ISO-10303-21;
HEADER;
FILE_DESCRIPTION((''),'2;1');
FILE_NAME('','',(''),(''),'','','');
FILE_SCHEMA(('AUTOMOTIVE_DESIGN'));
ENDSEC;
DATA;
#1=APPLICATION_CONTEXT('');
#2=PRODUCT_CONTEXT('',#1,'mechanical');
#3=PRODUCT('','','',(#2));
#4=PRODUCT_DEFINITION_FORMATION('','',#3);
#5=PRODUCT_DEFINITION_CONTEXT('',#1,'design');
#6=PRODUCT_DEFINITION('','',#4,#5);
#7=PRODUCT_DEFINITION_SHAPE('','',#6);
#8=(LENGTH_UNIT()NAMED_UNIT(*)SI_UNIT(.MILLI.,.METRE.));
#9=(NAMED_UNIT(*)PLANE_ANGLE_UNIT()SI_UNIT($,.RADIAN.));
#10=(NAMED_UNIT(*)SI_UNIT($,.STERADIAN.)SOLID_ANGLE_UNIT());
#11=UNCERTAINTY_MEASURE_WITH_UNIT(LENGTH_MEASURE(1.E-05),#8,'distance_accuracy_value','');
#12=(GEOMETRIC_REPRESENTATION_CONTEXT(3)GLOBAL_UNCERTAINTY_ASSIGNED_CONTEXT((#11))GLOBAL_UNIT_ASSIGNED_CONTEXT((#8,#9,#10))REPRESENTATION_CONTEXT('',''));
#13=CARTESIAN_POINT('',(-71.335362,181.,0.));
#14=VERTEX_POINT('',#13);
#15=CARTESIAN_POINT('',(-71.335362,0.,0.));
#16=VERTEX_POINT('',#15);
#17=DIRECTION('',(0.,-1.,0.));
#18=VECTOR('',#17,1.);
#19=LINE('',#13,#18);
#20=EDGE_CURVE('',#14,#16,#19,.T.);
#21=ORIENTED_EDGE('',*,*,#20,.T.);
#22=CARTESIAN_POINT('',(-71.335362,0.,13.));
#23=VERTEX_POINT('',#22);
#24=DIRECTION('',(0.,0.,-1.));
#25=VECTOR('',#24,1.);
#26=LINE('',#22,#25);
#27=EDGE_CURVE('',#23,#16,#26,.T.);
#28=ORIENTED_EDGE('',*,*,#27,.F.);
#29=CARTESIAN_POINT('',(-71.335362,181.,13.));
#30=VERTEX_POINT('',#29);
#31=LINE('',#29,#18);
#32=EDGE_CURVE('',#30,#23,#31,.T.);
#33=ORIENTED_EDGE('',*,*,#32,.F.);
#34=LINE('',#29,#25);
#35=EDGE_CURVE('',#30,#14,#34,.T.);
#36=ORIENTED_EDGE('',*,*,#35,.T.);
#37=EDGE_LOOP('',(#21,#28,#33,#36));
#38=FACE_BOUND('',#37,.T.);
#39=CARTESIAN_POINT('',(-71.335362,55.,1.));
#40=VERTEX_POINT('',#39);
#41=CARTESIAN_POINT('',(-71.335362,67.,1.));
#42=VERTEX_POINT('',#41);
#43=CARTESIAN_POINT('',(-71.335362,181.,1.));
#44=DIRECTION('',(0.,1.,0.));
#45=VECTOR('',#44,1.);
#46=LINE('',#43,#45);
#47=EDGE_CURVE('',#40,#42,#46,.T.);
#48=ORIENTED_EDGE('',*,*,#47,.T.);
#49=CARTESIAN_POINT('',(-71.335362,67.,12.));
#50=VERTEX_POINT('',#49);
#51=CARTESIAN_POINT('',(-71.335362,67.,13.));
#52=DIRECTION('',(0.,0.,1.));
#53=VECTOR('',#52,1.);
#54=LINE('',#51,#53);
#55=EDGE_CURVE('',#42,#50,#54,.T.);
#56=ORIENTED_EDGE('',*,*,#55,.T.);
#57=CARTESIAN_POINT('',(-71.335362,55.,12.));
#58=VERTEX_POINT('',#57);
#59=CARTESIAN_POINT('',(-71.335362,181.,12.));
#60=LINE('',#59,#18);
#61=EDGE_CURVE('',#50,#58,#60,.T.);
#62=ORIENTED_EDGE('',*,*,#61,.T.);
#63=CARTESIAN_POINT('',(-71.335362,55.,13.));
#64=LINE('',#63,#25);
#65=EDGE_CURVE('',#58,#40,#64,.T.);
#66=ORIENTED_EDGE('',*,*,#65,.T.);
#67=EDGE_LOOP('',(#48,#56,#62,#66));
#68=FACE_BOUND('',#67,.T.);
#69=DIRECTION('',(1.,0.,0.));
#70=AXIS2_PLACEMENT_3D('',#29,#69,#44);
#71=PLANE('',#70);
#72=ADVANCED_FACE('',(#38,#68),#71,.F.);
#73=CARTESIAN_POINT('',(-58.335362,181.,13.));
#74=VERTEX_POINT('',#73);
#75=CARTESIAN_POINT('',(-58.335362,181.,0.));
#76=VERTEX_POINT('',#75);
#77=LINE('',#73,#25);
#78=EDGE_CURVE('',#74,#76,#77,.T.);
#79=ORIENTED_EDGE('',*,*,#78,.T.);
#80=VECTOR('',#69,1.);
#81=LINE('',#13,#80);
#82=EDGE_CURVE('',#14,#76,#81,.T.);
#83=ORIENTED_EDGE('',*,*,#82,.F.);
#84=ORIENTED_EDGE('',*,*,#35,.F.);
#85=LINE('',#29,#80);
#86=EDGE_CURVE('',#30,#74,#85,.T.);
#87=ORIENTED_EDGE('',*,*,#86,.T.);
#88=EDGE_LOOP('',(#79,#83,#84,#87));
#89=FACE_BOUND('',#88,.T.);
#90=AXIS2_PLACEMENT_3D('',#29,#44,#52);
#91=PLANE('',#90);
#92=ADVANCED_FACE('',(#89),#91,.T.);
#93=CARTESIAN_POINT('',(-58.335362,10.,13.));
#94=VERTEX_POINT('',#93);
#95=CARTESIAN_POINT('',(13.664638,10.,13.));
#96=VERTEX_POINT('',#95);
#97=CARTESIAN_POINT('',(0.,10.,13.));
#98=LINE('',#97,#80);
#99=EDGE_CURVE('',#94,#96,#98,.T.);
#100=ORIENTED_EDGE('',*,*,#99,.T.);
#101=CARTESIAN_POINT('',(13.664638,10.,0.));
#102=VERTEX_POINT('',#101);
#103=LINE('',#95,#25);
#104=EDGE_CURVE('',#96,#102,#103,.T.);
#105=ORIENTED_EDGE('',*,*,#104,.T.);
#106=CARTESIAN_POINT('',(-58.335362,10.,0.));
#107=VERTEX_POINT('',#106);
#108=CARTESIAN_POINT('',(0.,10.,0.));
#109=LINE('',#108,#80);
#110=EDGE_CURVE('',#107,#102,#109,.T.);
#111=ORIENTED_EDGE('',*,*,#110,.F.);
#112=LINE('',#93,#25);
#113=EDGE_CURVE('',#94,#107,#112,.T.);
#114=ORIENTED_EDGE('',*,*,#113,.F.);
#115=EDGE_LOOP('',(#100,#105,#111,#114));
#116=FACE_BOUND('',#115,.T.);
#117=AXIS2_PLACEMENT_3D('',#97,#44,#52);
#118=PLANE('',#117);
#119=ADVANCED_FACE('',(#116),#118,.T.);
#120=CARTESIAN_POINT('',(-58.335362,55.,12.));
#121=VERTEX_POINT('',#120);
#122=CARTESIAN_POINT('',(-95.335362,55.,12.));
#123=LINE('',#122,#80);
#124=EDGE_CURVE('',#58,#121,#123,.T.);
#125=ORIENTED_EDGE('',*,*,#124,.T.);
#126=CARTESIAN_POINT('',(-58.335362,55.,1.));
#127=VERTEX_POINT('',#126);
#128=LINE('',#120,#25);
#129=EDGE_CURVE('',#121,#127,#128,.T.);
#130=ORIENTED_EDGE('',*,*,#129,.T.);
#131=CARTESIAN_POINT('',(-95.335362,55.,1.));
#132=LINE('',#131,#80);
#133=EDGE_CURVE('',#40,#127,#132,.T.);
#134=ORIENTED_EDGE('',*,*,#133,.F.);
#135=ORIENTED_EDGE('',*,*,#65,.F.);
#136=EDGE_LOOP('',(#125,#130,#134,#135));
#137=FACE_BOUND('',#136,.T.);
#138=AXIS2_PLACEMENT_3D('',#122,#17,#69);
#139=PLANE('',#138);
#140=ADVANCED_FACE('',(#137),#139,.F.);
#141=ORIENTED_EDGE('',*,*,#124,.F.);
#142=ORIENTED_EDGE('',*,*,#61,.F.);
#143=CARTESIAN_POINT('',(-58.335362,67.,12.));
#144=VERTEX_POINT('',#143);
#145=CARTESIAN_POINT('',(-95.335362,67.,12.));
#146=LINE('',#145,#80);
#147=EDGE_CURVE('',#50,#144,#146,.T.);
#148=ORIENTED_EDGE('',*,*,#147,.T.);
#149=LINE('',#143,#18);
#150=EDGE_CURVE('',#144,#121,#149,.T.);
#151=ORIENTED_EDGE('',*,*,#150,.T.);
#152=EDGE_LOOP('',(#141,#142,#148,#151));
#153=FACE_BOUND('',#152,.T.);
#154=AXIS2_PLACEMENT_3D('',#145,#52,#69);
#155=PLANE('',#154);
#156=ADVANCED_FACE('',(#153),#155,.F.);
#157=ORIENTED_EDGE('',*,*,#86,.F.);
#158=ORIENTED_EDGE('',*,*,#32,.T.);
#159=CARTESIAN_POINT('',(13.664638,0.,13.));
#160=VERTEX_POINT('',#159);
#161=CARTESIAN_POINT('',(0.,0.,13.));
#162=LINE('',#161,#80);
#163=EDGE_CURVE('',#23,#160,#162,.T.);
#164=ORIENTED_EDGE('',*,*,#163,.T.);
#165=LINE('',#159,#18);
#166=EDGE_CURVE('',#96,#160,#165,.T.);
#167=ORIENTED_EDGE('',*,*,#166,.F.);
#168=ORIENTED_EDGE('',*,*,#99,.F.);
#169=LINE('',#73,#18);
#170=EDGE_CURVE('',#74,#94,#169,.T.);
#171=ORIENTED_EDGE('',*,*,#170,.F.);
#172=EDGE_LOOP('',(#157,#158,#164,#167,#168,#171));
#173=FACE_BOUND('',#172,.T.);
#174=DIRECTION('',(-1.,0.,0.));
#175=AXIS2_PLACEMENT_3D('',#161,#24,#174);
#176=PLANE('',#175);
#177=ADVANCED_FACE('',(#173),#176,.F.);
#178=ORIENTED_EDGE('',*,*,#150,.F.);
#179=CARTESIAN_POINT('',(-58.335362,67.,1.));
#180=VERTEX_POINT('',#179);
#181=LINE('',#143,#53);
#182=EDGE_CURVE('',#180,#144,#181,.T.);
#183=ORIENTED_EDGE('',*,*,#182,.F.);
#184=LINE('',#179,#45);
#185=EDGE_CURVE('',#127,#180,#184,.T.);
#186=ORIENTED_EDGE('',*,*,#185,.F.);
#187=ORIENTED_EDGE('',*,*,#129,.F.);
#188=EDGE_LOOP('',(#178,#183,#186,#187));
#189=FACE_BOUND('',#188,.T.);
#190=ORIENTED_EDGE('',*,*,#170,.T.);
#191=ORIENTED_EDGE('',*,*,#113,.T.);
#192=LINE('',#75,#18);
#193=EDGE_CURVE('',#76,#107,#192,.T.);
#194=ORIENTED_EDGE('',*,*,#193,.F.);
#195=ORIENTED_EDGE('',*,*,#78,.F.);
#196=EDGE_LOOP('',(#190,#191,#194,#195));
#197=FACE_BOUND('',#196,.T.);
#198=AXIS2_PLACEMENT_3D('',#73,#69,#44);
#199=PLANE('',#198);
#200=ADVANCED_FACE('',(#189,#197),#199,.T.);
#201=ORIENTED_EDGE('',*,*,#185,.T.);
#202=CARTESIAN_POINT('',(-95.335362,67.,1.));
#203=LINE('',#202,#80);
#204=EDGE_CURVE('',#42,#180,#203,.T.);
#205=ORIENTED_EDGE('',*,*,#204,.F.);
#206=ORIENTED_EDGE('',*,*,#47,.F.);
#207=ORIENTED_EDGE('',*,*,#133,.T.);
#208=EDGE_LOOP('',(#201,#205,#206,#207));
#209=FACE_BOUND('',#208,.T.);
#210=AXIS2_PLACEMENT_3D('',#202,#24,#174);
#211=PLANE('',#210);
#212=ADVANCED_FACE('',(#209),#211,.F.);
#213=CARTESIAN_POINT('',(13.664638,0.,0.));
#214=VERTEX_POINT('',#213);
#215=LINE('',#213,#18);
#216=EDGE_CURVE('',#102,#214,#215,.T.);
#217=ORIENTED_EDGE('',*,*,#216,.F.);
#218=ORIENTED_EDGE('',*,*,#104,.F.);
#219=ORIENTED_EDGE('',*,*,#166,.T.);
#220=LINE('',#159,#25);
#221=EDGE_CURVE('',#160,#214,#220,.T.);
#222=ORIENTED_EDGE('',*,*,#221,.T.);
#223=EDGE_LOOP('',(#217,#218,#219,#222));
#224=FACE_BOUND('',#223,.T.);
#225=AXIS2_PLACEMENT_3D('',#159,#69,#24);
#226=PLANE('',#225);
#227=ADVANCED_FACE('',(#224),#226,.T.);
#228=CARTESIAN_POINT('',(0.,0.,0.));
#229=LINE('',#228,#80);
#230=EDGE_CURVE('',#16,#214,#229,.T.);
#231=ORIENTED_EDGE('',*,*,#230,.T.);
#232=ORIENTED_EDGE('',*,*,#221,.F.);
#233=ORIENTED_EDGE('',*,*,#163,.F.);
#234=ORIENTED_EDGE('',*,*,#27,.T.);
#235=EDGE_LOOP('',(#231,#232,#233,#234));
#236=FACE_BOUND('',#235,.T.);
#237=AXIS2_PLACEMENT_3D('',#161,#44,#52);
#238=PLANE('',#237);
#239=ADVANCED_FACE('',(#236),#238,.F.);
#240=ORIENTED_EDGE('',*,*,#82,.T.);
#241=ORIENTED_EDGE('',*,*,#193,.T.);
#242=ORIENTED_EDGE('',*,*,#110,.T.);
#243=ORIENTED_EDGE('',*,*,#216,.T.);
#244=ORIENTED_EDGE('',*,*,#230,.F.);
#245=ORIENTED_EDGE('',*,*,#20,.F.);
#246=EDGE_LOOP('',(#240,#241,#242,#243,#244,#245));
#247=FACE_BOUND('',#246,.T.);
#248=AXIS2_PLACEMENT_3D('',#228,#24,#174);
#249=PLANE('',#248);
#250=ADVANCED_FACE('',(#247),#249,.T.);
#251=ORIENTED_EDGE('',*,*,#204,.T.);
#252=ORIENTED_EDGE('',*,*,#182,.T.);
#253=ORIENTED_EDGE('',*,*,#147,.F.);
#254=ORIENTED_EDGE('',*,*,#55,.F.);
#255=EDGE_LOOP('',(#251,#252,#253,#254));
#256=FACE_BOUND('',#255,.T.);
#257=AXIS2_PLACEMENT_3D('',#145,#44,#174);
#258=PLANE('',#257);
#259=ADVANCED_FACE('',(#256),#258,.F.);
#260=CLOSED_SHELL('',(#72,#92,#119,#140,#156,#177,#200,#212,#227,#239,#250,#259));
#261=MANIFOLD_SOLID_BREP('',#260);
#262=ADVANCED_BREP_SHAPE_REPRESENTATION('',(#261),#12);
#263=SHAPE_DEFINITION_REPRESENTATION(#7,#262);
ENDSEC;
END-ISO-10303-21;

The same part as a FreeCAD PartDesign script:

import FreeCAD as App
import Part
import Sketcher
from FreeCAD import Vector

doc = App.newDocument("Part")
body = doc.addObject("PartDesign::Body", "Body")

# Sketch on XY plane
sketch1 = body.newObject("Sketcher::SketchObject", "Sketch")
sketch1.AttachmentSupport = (doc.getObject("XY_Plane"), [""])
sketch1.MapMode = "FlatFace"
sketch1.addGeometry([
    Part.LineSegment(Vector(-71.335362, 181, 0), Vector(-71.335362, 10, 0)),
    Part.LineSegment(Vector(-71.335362, 10, 0), Vector(-58.335362, 10, 0)),
    Part.LineSegment(Vector(-58.335362, 10, 0), Vector(-58.335362, 181, 0)),
    Part.LineSegment(Vector(-58.335362, 181, 0), Vector(-71.335362, 181, 0)),
], False)
sketch1.addConstraint([
    Sketcher.Constraint("Coincident", 0, 2, 1, 1),
    Sketcher.Constraint("Coincident", 1, 2, 2, 1),
    Sketcher.Constraint("Coincident", 2, 2, 3, 1),
    Sketcher.Constraint("Coincident", 3, 2, 0, 1),
    Sketcher.Constraint("Vertical", 0),
    Sketcher.Constraint("Horizontal", 1),
    Sketcher.Constraint("Vertical", 2),
    Sketcher.Constraint("Horizontal", 3),
    Sketcher.Constraint("DistanceX", 1, 1, 1, 2, 13.0),
    Sketcher.Constraint("DistanceY", 0, 2, 0, 1, 171.0),
    Sketcher.Constraint("DistanceY", -1, 1, 0, 2, 10.0),
    Sketcher.Constraint("DistanceX", 0, 2, -1, 1, 71.335362),
])
pad1 = body.newObject("PartDesign::Pad", "Pad")
pad1.Profile = sketch1
pad1.Length = 13

# Sketch on XY plane
sketch2 = body.newObject("Sketcher::SketchObject", "Sketch001")
sketch2.AttachmentSupport = (doc.getObject("XY_Plane"), [""])
sketch2.MapMode = "FlatFace"
sketch2.addGeometry([
    Part.LineSegment(Vector(-71.335362, 10, 0), Vector(-71.335362, 0, 0)),
    Part.LineSegment(Vector(-71.335362, 0, 0), Vector(13.664638, 0, 0)),
    Part.LineSegment(Vector(13.664638, 0, 0), Vector(13.664638, 10, 0)),
    Part.LineSegment(Vector(13.664638, 10, 0), Vector(-71.335362, 10, 0)),
], False)
sketch2.addConstraint([
    Sketcher.Constraint("Coincident", 0, 2, 1, 1),
    Sketcher.Constraint("Coincident", 1, 2, 2, 1),
    Sketcher.Constraint("Coincident", 2, 2, 3, 1),
    Sketcher.Constraint("Coincident", 3, 2, 0, 1),
    Sketcher.Constraint("Vertical", 0),
    Sketcher.Constraint("Horizontal", 1),
    Sketcher.Constraint("Vertical", 2),
    Sketcher.Constraint("Horizontal", 3),
    Sketcher.Constraint("PointOnObject", 0, 2, -1),
    Sketcher.Constraint("DistanceX", 1, 1, 1, 2, 85.0),
    Sketcher.Constraint("DistanceY", 0, 2, 0, 1, 10.0),
    Sketcher.Constraint("DistanceX", 0, 2, -1, 1, 71.335362),
])
pad2 = body.newObject("PartDesign::Pad", "Pad001")
pad2.Profile = sketch2
pad2.Length = 13

# Sketch on YZ plane
sketch3 = body.newObject("Sketcher::SketchObject", "Sketch002")
sketch3.AttachmentSupport = (doc.getObject("YZ_Plane"), [""])
sketch3.MapMode = "FlatFace"
sketch3.AttachmentOffset = App.Placement(Vector(0, 0, -58.335362), App.Rotation())
sketch3.addGeometry([
    Part.LineSegment(Vector(67, 12, 0), Vector(55, 12, 0)),
    Part.LineSegment(Vector(55, 12, 0), Vector(55, 1, 0)),
    Part.LineSegment(Vector(55, 1, 0), Vector(67, 1, 0)),
    Part.LineSegment(Vector(67, 1, 0), Vector(67, 12, 0)),
], False)
sketch3.addConstraint([
    Sketcher.Constraint("Coincident", 0, 2, 1, 1),
    Sketcher.Constraint("Coincident", 1, 2, 2, 1),
    Sketcher.Constraint("Coincident", 2, 2, 3, 1),
    Sketcher.Constraint("Coincident", 3, 2, 0, 1),
    Sketcher.Constraint("Horizontal", 0),
    Sketcher.Constraint("Vertical", 1),
    Sketcher.Constraint("Horizontal", 2),
    Sketcher.Constraint("Vertical", 3),
    Sketcher.Constraint("DistanceX", 0, 2, 0, 1, 12.0),
    Sketcher.Constraint("DistanceY", 1, 2, 1, 1, 11.0),
    Sketcher.Constraint("DistanceX", -1, 1, 0, 2, 55.0),
    Sketcher.Constraint("DistanceY", -1, 1, 0, 2, 12.0),
])
pocket1 = body.newObject("PartDesign::Pocket", "Pocket")
pocket1.Profile = sketch3
pocket1.Length = 37

doc.recompute()
